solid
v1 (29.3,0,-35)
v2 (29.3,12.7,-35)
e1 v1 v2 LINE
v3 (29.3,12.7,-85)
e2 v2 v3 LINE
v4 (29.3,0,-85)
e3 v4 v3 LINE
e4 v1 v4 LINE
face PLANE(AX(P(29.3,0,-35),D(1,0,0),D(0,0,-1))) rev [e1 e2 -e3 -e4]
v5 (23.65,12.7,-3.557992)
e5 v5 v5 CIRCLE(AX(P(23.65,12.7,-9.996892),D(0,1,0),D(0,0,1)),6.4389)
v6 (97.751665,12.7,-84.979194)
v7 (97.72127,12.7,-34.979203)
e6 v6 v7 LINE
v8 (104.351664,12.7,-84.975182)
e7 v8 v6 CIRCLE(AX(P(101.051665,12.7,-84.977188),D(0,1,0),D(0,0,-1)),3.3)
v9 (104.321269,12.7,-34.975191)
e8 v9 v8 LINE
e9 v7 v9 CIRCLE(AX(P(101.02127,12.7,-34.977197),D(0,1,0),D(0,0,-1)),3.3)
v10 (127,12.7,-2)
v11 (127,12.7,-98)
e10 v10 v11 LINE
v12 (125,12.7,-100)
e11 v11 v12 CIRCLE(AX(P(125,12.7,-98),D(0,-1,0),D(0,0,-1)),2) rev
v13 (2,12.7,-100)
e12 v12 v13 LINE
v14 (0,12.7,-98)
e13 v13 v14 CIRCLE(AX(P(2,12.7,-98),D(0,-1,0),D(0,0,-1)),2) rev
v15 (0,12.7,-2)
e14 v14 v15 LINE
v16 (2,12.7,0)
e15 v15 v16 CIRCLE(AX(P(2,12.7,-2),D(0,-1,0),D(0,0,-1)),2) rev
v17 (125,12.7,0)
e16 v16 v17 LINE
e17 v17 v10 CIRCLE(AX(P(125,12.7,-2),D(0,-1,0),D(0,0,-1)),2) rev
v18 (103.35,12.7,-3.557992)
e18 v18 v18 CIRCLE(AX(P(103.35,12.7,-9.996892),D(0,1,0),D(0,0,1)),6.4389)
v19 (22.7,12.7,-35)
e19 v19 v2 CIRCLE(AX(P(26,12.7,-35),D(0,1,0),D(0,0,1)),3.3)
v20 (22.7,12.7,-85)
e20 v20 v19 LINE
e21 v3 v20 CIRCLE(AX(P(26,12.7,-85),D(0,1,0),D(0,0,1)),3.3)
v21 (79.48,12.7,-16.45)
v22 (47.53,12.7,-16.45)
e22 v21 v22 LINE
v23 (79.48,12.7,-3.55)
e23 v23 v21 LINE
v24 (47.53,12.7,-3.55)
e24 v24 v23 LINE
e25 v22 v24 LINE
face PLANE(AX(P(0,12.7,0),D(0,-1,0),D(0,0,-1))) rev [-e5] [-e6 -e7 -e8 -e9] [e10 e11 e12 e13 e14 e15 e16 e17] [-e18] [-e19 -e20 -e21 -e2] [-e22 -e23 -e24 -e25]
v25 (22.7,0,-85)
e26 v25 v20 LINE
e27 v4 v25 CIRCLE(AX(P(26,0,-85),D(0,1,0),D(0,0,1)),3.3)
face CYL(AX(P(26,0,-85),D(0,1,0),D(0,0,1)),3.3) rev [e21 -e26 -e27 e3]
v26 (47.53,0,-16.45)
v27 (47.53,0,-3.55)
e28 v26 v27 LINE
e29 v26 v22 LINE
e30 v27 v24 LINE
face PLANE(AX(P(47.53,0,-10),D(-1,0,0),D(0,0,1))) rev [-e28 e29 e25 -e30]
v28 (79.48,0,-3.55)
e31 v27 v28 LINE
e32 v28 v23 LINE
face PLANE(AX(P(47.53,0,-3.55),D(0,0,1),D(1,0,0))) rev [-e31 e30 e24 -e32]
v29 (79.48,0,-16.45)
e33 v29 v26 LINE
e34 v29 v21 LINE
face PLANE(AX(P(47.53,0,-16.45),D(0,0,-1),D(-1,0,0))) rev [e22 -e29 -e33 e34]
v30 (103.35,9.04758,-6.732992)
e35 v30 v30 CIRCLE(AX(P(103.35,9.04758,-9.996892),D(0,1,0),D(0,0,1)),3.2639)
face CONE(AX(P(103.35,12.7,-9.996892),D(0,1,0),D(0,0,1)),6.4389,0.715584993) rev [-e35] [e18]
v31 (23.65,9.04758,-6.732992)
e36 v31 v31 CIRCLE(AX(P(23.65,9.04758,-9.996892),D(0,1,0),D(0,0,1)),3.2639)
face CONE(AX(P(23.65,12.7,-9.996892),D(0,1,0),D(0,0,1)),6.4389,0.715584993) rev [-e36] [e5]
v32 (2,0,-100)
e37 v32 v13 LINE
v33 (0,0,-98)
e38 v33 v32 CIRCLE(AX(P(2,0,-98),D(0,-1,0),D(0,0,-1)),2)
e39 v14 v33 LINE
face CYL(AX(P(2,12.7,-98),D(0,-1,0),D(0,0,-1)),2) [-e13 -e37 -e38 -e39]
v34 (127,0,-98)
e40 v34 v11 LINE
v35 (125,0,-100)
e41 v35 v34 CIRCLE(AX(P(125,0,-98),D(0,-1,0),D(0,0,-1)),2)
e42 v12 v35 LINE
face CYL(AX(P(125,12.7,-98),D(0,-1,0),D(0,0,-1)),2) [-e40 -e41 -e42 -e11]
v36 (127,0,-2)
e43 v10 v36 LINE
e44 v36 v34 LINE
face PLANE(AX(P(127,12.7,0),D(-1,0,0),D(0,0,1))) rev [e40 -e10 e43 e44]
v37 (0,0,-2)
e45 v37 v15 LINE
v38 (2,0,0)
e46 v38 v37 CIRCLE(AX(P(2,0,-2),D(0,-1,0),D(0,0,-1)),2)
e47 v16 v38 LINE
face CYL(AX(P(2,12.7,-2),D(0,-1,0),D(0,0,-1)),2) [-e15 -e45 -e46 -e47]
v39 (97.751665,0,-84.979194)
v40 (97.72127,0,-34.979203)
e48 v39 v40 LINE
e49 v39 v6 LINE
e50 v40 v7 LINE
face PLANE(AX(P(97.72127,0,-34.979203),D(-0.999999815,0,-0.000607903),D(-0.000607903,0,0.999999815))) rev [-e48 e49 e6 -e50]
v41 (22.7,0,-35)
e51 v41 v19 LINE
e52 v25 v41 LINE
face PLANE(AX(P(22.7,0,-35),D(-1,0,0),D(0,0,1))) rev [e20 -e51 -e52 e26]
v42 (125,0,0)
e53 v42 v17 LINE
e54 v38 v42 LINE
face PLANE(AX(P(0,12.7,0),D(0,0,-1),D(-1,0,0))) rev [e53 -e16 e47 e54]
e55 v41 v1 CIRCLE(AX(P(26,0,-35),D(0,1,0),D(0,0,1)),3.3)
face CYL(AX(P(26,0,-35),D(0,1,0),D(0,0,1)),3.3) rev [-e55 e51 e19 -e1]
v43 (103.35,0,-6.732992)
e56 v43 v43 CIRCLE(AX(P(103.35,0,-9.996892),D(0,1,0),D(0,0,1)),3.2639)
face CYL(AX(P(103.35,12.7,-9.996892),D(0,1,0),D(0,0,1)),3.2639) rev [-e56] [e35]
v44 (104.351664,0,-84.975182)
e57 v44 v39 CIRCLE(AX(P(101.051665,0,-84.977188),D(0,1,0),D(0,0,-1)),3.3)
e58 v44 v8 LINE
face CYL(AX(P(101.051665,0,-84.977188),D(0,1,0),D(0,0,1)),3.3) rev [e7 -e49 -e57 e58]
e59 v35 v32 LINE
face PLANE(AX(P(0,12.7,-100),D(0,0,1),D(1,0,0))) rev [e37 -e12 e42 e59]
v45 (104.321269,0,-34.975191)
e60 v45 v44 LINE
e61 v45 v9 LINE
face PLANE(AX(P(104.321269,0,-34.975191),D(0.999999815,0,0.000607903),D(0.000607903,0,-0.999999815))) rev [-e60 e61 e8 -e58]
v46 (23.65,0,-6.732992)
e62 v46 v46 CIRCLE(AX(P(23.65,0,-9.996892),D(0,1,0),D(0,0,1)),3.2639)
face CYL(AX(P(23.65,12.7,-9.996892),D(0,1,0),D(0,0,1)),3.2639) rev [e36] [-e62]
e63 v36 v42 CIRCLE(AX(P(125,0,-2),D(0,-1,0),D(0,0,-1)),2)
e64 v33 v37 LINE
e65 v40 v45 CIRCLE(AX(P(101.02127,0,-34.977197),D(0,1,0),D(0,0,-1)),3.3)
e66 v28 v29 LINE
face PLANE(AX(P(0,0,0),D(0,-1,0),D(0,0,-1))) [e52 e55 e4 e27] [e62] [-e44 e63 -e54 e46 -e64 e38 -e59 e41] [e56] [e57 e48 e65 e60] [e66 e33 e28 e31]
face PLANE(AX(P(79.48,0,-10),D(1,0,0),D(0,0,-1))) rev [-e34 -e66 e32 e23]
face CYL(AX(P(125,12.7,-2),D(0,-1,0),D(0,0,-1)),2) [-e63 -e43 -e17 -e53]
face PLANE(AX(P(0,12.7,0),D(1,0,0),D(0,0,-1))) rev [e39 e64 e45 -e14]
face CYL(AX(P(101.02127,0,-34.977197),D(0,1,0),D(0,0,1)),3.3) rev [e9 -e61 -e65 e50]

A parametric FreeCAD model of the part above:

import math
import FreeCAD as App
import Part
import Sketcher
from FreeCAD import Vector


def edges_at(feature, points):
    """Names of the edges that pass closest to the given points."""
    edges = feature.Shape.Edges
    near = lambda p: min(range(len(edges)), key=lambda i: edges[i].distToShape(Part.Vertex(*p))[0])
    return sorted({f"Edge{near(p) + 1}" for p in points})

doc = App.newDocument("Part")
body = doc.addObject("PartDesign::Body", "Body")

sketch1 = body.newObject("Sketcher::SketchObject", "Sketch")
sketch1.AttachmentSupport = (doc.getObject("XZ_Plane"), [""])
sketch1.MapMode = "FlatFace"
sketch1.addGeometry(Part.LineSegment(Vector(0, -100, 0), Vector(0, 0, 0)), False)
sketch1.addGeometry(Part.LineSegment(Vector(0, 0, 0), Vector(127, 0, 0)), False)
sketch1.addGeometry(Part.LineSegment(Vector(127, 0, 0), Vector(127, -100, 0)), False)
sketch1.addGeometry(Part.LineSegment(Vector(127, -100, 0), Vector(0, -100, 0)), False)
sketch1.addConstraint(Sketcher.Constraint("Coincident", 0, 2, 1, 1))
sketch1.addConstraint(Sketcher.Constraint("Coincident", 1, 2, 2, 1))
sketch1.addConstraint(Sketcher.Constraint("Coincident", 2, 2, 3, 1))
sketch1.addConstraint(Sketcher.Constraint("Coincident", 3, 2, 0, 1))
sketch1.addConstraint(Sketcher.Constraint("Vertical", 0))
sketch1.addConstraint(Sketcher.Constraint("Horizontal", 1))
sketch1.addConstraint(Sketcher.Constraint("Vertical", 2))
sketch1.addConstraint(Sketcher.Constraint("Horizontal", 3))
sketch1.addConstraint(Sketcher.Constraint("Coincident", 0, 2, -1, 1))
sketch1.addConstraint(Sketcher.Constraint("DistanceX", 1, 1, 1, 2, 127.0))
sketch1.addConstraint(Sketcher.Constraint("DistanceY", 0, 1, 0, 2, 100.0))
pad1 = body.newObject("PartDesign::Pad", "Pad")
pad1.Profile = sketch1
pad1.Length = 12.7
pad1.Reversed = True

sketch2 = body.newObject("Sketcher::SketchObject", "Sketch001")
sketch2.AttachmentSupport = (doc.getObject("XZ_Plane"), [""])
sketch2.MapMode = "FlatFace"
sketch2.AttachmentOffset = App.Placement(Vector(0, 0, -12.7), App.Rotation())
sketch2.addGeometry(Part.LineSegment(Vector(48, -16, 0), Vector(48, -4, 0)), False)
sketch2.addGeometry(Part.LineSegment(Vector(48, -4, 0), Vector(79, -4, 0)), False)
sketch2.addGeometry(Part.LineSegment(Vector(79, -4, 0), Vector(79, -16, 0)), False)
sketch2.addGeometry(Part.LineSegment(Vector(79, -16, 0), Vector(48, -16, 0)), False)
sketch2.addConstraint(Sketcher.Constraint("Coincident", 0, 2, 1, 1))
sketch2.addConstraint(Sketcher.Constraint("Coincident", 1, 2, 2, 1))
sketch2.addConstraint(Sketcher.Constraint("Coincident", 2, 2, 3, 1))
sketch2.addConstraint(Sketcher.Constraint("Coincident", 3, 2, 0, 1))
sketch2.addConstraint(Sketcher.Constraint("Vertical", 0))
sketch2.addConstraint(Sketcher.Constraint("Horizontal", 1))
sketch2.addConstraint(Sketcher.Constraint("Vertical", 2))
sketch2.addConstraint(Sketcher.Constraint("Horizontal", 3))
sketch2.addConstraint(Sketcher.Constraint("DistanceY", 0, 1, 0, 2, 12.9))
sketch2.addConstraint(Sketcher.Constraint("DistanceX", 1, 1, 1, 2, 31.95))
sketch2.addConstraint(Sketcher.Constraint("DistanceX", -1, 1, 0, 2, 47.53))
sketch2.addConstraint(Sketcher.Constraint("DistanceY", 0, 2, -1, 1, 3.55))
pocket1 = body.newObject("PartDesign::Pocket", "Pocket")
pocket1.Profile = sketch2
pocket1.Length = 12.7
pocket1.Reversed = True

sketch3 = body.newObject("Sketcher::SketchObject", "Sketch002")
sketch3.AttachmentSupport = (doc.getObject("XZ_Plane"), [""])
sketch3.MapMode = "FlatFace"
sketch3.AttachmentOffset = App.Placement(Vector(0, 0, -12.7), App.Rotation())
sketch3.addGeometry(Part.LineSegment(Vector(22.7, -85, 0), Vector(22.7, -35, 0)), False)
sketch3.addGeometry(Part.ArcOfCircle(Part.Circle(Vector(26, -35, 0), Vector(0, 0, 1), 3.3), math.radians(0), math.radians(180)), False)
sketch3.addGeometry(Part.LineSegment(Vector(29.3, -35, 0), Vector(29.3, -85, 0)), False)
sketch3.addGeometry(Part.ArcOfCircle(Part.Circle(Vector(26, -85, 0), Vector(0, 0, 1), 3.3), math.radians(180), math.radians(360)), False)
sketch3.addGeometry(Part.LineSegment(Vector(97.8, -85, 0), Vector(97.7, -35, 0)), False)
sketch3.addGeometry(Part.ArcOfCircle(Part.Circle(Vector(101, -35, 0), Vector(0, 0, 1), 3.3), math.radians(0), math.radians(180)), False)
sketch3.addGeometry(Part.LineSegment(Vector(104.3, -35, 0), Vector(104.4, -85, 0)), False)
sketch3.addGeometry(Part.ArcOfCircle(Part.Circle(Vector(101.1, -85, 0), Vector(0, 0, 1), 3.3), math.radians(-180), math.radians(0)), False)
sketch3.addConstraint(Sketcher.Constraint("Tangent", 0, 2, 1, 2))
sketch3.addConstraint(Sketcher.Constraint("Tangent", 1, 1, 2, 1))
sketch3.addConstraint(Sketcher.Constraint("Tangent", 2, 2, 3, 2))
sketch3.addConstraint(Sketcher.Constraint("Tangent", 3, 1, 0, 1))
sketch3.addConstraint(Sketcher.Constraint("Tangent", 4, 2, 5, 2))
sketch3.addConstraint(Sketcher.Constraint("Tangent", 5, 1, 6, 1))
sketch3.addConstraint(Sketcher.Constraint("Tangent", 6, 2, 7, 2))
sketch3.addConstraint(Sketcher.Constraint("Tangent", 7, 1, 4, 1))
sketch3.addConstraint(Sketcher.Constraint("Vertical", 0))
sketch3.addConstraint(Sketcher.Constraint("Vertical", 2))
sketch3.addConstraint(Sketcher.Constraint("Equal", 3, 5))
sketch3.addConstraint(Sketcher.Constraint("Equal", 5, 7))
sketch3.addConstraint(Sketcher.Constraint("Radius", 1, 3.3))
sketch3.addConstraint(Sketcher.Constraint("DistanceY", 0, 1, 0, 2, 50.0))
sketch3.addConstraint(Sketcher.Constraint("Distance", 4, 50.0))
sketch3.addConstraint(Sketcher.Constraint("DistanceX", -1, 1, 1, 3, 26.0))
sketch3.addConstraint(Sketcher.Constraint("DistanceY", 1, 3, -1, 1, 35.0))
sketch3.addConstraint(Sketcher.Constraint("DistanceX", -1, 1, 5, 3, 101.02127))
sketch3.addConstraint(Sketcher.Constraint("DistanceY", 5, 1, -1, 1, 34.975191))
sketch3.addConstraint(Sketcher.Constraint("DistanceY", 6, 2, 4, 2, 49.995979))
pocket2 = body.newObject("PartDesign::Pocket", "Pocket001")
pocket2.Profile = sketch3
pocket2.Type = "ThroughAll"
pocket2.Reversed = True
doc.recompute()

fillet = body.newObject("PartDesign::Fillet", "Fillet")
fillet.Base = (pocket2, edges_at(pocket2, [
    (0, 6.35, -100),
    (127, 6.35, -100),
    (127, 6.35, 0),
    (0, 6.35, 0),
]))
fillet.Radius = 2

sketch4 = body.newObject("Sketcher::SketchObject", "Sketch003")
sketch4.AttachmentSupport = (doc.getObject("XZ_Plane"), [""])
sketch4.MapMode = "FlatFace"
sketch4.AttachmentOffset = App.Placement(Vector(0, 0, -12.7), App.Rotation())
sketch4.addGeometry(Part.Circle(Vector(23.6, -10, 0), Vector(0, 0, 1), 3.3), False)
sketch4.addGeometry(Part.Circle(Vector(103.3, -10, 0), Vector(0, 0, 1), 3.3), False)
sketch4.addConstraint(Sketcher.Constraint("Equal", 0, 1))
sketch4.addConstraint(Sketcher.Constraint("Horizontal", 0, 3, 1, 3))
sketch4.addConstraint(Sketcher.Constraint("Diameter", 0, 6.5278))
sketch4.addConstraint(Sketcher.Constraint("DistanceX", 0, 3, 1, 3, 79.7))
sketch4.addConstraint(Sketcher.Constraint("DistanceX", -1, 1, 0, 3, 23.65))
sketch4.addConstraint(Sketcher.Constraint("DistanceY", 0, 3, -1, 1, 9.996892))
doc.recompute()
hole = body.newObject("PartDesign::Hole", "Hole")
hole.Profile = sketch4
hole.ThreadType = "None"
hole.Diameter = 6.5278
hole.DepthType = "ThroughAll"
hole.HoleCutType = "Countersink"
hole.HoleCutDiameter = 12.8778
hole.HoleCutCountersinkAngle = 82
hole.Reversed = True

doc.recompute()
